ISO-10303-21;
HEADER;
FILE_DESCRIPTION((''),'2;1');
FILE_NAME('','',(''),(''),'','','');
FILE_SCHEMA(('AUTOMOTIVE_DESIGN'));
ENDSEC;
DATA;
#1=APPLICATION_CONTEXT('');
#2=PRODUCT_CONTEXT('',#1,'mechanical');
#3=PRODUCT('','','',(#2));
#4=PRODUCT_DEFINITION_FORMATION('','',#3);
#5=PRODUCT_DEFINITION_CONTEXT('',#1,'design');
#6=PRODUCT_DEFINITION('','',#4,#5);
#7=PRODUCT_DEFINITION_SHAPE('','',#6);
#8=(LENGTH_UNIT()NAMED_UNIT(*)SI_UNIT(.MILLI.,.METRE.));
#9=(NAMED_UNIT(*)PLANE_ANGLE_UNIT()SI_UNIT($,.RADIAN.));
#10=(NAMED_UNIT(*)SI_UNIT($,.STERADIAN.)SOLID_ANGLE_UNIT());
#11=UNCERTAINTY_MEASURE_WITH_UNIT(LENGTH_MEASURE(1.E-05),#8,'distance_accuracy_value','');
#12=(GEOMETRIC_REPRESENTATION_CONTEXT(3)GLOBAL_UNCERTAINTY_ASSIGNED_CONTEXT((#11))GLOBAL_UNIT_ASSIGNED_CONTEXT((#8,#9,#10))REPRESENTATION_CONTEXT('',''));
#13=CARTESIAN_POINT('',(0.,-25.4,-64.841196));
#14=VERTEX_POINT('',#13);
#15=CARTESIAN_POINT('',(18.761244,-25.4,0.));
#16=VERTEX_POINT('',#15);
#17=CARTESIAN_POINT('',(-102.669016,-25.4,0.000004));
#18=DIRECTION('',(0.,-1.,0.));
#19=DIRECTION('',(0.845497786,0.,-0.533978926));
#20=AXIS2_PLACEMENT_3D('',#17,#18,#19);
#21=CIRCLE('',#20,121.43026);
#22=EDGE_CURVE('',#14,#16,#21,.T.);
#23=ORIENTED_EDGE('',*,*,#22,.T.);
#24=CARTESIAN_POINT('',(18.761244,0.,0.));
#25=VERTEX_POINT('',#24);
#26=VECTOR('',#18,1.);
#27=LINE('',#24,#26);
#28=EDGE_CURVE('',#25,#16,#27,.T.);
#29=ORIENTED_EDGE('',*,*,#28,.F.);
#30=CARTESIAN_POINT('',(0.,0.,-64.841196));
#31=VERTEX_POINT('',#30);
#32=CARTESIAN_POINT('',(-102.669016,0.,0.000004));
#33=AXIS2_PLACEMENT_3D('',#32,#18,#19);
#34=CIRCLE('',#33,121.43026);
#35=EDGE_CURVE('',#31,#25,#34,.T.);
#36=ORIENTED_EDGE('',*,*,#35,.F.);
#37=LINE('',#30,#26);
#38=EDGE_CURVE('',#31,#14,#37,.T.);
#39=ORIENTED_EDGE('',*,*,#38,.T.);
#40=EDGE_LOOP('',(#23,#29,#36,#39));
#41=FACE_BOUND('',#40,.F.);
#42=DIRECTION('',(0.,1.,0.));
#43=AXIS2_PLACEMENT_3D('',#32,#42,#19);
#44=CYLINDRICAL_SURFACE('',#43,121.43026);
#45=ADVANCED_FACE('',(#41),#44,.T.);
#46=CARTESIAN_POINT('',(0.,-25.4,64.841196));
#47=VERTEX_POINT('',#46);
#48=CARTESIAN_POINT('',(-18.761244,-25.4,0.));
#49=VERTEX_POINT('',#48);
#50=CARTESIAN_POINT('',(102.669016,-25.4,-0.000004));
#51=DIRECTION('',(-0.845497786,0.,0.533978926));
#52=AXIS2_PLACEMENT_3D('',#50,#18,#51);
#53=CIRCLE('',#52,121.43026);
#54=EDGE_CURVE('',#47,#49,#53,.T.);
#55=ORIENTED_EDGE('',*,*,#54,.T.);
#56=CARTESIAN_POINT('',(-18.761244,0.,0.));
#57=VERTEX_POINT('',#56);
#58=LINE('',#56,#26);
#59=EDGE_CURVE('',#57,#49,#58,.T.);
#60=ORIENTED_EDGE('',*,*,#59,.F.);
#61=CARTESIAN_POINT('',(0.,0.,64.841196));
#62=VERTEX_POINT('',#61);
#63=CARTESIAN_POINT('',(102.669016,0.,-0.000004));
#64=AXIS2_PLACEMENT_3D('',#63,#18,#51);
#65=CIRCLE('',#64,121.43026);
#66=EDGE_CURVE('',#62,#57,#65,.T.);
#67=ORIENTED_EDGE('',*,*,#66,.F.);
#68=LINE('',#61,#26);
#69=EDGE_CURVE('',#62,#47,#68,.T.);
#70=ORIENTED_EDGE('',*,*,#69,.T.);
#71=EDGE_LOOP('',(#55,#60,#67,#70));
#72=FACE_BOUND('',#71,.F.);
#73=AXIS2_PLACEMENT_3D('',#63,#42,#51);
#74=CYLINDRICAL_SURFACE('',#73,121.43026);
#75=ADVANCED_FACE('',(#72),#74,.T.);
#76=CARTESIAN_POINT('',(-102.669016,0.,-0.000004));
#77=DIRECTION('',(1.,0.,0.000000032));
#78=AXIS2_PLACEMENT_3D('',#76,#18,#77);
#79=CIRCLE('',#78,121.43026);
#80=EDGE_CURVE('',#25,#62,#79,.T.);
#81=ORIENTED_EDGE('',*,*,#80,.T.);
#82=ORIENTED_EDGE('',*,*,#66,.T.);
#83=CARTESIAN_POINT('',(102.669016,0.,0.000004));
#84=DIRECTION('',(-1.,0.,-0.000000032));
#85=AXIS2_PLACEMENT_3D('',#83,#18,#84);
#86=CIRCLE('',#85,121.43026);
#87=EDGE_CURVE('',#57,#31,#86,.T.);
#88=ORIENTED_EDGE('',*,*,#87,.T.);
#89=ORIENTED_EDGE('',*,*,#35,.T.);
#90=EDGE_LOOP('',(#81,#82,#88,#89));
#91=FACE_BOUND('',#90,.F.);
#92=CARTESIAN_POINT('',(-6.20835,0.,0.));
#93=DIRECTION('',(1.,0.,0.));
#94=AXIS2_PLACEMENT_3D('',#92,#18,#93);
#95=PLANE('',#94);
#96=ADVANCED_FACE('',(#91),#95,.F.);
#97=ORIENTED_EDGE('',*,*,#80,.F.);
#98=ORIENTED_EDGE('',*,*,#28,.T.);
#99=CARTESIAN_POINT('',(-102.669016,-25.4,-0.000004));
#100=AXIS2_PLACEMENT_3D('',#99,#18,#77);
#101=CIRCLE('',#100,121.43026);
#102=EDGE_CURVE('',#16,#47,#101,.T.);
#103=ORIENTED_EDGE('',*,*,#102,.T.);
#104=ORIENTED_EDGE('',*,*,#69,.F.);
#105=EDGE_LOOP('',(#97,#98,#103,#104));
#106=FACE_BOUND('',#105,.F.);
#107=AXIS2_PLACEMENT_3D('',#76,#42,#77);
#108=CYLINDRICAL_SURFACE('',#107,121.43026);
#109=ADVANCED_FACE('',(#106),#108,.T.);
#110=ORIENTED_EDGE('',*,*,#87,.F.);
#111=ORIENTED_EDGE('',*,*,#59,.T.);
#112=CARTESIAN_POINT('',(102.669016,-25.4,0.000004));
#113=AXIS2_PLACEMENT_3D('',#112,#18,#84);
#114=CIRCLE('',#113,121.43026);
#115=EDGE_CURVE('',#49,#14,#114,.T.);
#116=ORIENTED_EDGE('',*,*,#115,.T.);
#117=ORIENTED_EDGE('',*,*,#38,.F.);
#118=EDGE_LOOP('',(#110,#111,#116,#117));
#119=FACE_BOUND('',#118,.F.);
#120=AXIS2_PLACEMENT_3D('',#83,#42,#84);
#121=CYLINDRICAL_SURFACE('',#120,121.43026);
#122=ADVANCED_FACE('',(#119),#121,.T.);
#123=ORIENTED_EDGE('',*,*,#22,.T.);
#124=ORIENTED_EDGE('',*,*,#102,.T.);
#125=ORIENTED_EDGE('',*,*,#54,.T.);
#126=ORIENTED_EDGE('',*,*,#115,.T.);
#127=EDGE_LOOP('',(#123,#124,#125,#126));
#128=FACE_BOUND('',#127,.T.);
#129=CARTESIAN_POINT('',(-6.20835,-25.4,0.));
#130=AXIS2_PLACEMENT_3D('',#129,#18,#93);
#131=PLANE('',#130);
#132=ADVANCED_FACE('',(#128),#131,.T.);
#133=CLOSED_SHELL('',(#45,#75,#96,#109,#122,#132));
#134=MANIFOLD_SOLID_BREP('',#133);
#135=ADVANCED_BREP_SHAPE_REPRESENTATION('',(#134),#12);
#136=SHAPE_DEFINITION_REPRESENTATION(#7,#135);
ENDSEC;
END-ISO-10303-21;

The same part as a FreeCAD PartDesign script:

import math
import FreeCAD as App
import Part
import Sketcher

V = App.Vector
Q = App.Units.Quantity

doc = App.newDocument("Part")
body = doc.addObject("PartDesign::Body", "Body")

# Sketch on XZ plane
sketch1 = body.newObject("Sketcher::SketchObject", "Sketch")
sketch1.AttachmentSupport = (doc.getObject("XZ_Plane"), [""])
sketch1.MapMode = "FlatFace"
sketch1.addGeometry(Part.ArcOfCircle(Part.Circle(V(103, 0, 0), V(0, 0, 1), 121), math.radians(148), math.radians(180)), False)
sketch1.addGeometry(Part.ArcOfCircle(Part.Circle(V(103, 0, 0), V(0, 0, 1), 121), math.radians(-180), math.radians(-148)), False)
sketch1.addGeometry(Part.ArcOfCircle(Part.Circle(V(-103, 0, 0), V(0, 0, 1), 121), math.radians(-32), math.radians(0)), False)
sketch1.addGeometry(Part.ArcOfCircle(Part.Circle(V(-103, 0, 0), V(0, 0, 1), 121), math.radians(0), math.radians(32)), False)
sketch1.addConstraint(Sketcher.Constraint("Tangent", 0, 2, 1, 1))
sketch1.addConstraint(Sketcher.Constraint("Coincident", 1, 2, 2, 1))
sketch1.addConstraint(Sketcher.Constraint("Tangent", 2, 2, 3, 1))
sketch1.addConstraint(Sketcher.Constraint("Coincident", 3, 2, 0, 1))
sketch1.addConstraint(Sketcher.Constraint("Equal", 0, 1))
sketch1.addConstraint(Sketcher.Constraint("Equal", 1, 2))
sketch1.addConstraint(Sketcher.Constraint("Equal", 2, 3))
sketch1.addConstraint(Sketcher.Constraint("Symmetric", 0, 3, 2, 3, -1, 1))
sketch1.addConstraint(Sketcher.Constraint("PointOnObject", 0, 2, -1))
sketch1.addConstraint(Sketcher.Constraint("PointOnObject", 1, 2, -2))
sketch1.addConstraint(Sketcher.Constraint("PointOnObject", 2, 2, -1))
sketch1.addConstraint(Sketcher.Constraint("Radius", 0, 121.43026))
sketch1.addConstraint(Sketcher.Constraint("DistanceY", 1, 2, 2, 3, 64.8412))
pad1 = body.newObject("PartDesign::Pad", "Pad")
pad1.Profile = sketch1
pad1.Length = Q("1 in")

doc.recompute()
